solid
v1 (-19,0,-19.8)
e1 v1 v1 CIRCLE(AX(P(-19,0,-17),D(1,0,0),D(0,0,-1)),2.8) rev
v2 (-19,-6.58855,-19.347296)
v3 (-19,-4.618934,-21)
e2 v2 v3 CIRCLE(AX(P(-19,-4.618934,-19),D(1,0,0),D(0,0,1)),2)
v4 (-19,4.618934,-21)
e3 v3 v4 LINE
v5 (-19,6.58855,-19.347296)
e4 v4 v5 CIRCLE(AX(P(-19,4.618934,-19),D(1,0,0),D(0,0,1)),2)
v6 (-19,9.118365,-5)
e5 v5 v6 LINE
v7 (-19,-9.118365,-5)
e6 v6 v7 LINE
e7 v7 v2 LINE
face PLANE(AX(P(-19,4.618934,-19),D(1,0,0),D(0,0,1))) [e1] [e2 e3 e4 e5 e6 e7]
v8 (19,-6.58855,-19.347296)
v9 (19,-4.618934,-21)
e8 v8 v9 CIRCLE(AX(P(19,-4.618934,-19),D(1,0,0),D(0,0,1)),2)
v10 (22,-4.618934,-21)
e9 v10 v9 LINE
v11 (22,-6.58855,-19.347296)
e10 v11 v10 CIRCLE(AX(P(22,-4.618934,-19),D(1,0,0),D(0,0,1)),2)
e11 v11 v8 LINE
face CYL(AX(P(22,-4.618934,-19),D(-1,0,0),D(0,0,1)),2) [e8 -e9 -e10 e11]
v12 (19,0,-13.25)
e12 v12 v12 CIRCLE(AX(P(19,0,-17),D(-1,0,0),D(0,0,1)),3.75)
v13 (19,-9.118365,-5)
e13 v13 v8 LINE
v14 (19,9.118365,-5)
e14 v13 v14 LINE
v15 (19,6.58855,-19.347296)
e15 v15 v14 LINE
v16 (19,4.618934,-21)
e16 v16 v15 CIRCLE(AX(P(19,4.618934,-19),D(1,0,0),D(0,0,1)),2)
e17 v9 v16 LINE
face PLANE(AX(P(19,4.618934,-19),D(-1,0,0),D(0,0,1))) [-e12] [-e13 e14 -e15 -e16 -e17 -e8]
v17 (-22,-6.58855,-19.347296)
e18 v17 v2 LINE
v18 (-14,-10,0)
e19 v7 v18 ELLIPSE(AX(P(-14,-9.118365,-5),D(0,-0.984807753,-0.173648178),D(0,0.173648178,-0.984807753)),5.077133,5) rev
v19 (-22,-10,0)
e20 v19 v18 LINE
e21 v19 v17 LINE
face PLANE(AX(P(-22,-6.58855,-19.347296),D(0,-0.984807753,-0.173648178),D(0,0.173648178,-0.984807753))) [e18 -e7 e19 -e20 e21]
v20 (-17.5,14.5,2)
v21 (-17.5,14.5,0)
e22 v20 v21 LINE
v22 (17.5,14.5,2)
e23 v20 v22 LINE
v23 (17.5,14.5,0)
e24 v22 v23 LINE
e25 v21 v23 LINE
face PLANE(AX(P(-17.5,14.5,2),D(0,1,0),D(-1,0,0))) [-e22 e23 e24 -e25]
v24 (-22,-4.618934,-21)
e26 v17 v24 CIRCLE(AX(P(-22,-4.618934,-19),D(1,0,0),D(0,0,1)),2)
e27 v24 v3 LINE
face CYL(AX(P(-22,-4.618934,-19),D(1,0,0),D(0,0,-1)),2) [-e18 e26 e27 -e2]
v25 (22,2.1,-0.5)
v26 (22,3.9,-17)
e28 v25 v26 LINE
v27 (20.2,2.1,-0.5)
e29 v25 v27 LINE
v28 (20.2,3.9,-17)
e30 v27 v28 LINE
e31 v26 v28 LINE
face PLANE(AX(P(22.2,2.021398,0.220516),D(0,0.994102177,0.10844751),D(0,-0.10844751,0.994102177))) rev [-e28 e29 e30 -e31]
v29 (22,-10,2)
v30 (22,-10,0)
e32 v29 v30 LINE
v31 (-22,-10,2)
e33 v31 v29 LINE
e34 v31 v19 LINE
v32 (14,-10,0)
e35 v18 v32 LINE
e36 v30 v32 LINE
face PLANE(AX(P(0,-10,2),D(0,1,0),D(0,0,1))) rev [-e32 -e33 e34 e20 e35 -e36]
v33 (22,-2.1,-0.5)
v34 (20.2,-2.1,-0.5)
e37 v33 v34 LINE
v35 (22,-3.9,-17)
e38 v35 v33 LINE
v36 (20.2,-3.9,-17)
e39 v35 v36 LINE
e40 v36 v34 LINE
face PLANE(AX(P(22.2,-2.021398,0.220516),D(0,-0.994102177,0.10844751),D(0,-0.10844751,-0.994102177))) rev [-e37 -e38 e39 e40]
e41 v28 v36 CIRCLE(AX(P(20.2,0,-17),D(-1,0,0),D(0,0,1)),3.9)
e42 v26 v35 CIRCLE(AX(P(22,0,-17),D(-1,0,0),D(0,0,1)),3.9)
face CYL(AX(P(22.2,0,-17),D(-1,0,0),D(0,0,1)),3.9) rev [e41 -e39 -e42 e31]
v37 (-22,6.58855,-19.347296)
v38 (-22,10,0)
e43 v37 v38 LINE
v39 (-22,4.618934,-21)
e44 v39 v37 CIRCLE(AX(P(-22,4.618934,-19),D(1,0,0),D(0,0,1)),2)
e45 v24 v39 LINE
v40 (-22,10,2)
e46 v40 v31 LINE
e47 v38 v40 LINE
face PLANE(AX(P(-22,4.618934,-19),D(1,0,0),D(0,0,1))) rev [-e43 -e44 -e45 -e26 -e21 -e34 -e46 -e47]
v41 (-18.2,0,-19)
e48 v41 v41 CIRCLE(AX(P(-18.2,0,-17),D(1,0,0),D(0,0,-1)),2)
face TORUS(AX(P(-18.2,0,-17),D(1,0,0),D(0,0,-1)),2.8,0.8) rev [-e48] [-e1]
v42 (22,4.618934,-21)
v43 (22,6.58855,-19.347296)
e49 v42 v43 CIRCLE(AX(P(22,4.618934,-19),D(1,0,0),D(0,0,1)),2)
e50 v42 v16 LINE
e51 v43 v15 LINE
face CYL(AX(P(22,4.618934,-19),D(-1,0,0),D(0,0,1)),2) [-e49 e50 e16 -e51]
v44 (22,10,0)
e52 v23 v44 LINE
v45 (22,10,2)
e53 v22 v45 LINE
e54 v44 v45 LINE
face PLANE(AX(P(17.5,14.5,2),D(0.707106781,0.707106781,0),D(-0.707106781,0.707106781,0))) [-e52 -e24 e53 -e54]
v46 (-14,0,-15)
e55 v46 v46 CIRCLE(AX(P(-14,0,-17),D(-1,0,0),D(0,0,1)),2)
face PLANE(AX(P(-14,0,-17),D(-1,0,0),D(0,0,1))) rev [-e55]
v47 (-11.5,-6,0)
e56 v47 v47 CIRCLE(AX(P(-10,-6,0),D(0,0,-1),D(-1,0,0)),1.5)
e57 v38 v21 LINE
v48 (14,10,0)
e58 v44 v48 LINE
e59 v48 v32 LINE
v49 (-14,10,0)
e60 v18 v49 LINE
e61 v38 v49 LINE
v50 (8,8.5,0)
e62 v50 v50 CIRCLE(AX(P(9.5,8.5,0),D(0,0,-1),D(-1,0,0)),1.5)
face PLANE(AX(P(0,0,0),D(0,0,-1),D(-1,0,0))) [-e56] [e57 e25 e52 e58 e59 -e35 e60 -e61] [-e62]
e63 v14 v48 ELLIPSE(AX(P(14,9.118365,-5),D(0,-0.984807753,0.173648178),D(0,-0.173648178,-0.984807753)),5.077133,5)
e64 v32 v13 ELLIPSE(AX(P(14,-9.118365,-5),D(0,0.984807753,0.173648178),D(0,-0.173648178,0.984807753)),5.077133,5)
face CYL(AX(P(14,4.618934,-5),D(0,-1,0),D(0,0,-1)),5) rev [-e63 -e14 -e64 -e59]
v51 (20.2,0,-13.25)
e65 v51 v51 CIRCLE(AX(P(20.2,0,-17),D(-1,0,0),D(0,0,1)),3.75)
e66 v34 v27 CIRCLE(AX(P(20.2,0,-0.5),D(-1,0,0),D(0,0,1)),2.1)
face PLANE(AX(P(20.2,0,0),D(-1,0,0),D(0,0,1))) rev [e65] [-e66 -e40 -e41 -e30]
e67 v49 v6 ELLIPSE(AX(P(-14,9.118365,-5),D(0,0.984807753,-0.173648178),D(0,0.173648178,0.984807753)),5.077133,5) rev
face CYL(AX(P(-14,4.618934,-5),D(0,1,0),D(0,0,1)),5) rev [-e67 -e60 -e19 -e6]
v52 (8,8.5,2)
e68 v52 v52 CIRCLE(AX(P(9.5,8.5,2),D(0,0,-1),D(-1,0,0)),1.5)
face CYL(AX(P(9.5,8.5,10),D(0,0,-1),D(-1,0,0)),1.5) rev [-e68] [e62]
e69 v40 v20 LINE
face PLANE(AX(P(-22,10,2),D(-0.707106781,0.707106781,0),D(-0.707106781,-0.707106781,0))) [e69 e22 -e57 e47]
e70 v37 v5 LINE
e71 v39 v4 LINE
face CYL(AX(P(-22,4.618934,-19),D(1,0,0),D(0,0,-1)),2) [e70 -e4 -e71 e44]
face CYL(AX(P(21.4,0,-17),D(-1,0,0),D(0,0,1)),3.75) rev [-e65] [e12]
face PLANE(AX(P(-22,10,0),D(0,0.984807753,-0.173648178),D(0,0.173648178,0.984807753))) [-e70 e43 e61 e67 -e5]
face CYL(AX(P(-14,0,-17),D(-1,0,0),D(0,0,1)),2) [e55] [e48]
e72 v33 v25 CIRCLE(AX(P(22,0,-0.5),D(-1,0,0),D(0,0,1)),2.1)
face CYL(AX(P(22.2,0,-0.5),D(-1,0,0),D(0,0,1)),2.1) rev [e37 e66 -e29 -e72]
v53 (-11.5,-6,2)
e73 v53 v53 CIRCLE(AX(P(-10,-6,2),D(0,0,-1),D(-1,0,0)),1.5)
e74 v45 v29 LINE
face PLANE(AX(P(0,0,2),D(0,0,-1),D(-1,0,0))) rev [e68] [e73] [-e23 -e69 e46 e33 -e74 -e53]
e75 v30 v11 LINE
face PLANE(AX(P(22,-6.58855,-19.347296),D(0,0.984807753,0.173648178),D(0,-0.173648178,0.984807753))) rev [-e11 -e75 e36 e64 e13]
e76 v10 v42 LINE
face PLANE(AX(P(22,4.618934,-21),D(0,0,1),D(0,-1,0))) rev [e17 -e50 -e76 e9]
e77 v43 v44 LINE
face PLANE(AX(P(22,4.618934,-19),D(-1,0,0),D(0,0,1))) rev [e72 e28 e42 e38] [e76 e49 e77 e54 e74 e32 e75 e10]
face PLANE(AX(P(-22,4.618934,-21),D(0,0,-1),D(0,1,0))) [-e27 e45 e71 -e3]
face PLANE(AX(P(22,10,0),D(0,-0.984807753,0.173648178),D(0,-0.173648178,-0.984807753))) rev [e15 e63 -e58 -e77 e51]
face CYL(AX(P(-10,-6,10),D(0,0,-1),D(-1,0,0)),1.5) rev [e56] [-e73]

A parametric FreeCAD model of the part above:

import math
import FreeCAD as App
import Part
import Sketcher
Q = App.Units.Quantity


def edges_at(feature, points):
    """Names of the edges that pass closest to the given points."""
    edges = feature.Shape.Edges
    near = lambda p: min(range(len(edges)), key=lambda i: edges[i].distToShape(Part.Vertex(*p))[0])
    return sorted({f"Edge{near(p) + 1}" for p in points})

doc = App.newDocument("Part")
body = doc.addObject("PartDesign::Body", "Body")

# Sketch on XY plane
sketch1 = body.newObject("Sketcher::SketchObject", "Sketch")
sketch1.AttachmentSupport = (doc.getObject("XY_Plane"), [""])
sketch1.MapMode = "FlatFace"
sketch1.addGeometry([
    Part.LineSegment(App.Vector(-19, 10, 0), App.Vector(-19, -10, 0)),
    Part.LineSegment(App.Vector(-19, -10, 0), App.Vector(19, -10, 0)),
    Part.LineSegment(App.Vector(19, -10, 0), App.Vector(19, 10, 0)),
    Part.LineSegment(App.Vector(19, 10, 0), App.Vector(-19, 10, 0)),
], False)
sketch1.addConstraint([
    Sketcher.Constraint("Coincident", 0, 2, 1, 1),
    Sketcher.Constraint("Coincident", 1, 2, 2, 1),
    Sketcher.Constraint("Coincident", 2, 2, 3, 1),
    Sketcher.Constraint("Coincident", 3, 2, 0, 1),
    Sketcher.Constraint("Vertical", 0),
    Sketcher.Constraint("Horizontal", 1),
    Sketcher.Constraint("Vertical", 2),
    Sketcher.Constraint("Horizontal", 3),
    Sketcher.Constraint("Symmetric", 0, 2, 2, 2, -1, 1),
    Sketcher.Constraint("DistanceX", 1, 1, 1, 2, Q("38 mm")),
    Sketcher.Constraint("DistanceY", 0, 2, 0, 1, Q("20 mm")),
])
pad1 = body.newObject("PartDesign::Pad", "Pad")
pad1.Profile = sketch1
pad1.Length = 2

# Sketch on YZ plane
sketch2 = body.newObject("Sketcher::SketchObject", "Sketch001")
sketch2.AttachmentSupport = (doc.getObject("YZ_Plane"), [""])
sketch2.MapMode = "FlatFace"
sketch2.AttachmentOffset = App.Placement(App.Vector(0, 0, 19), App.Rotation())
sketch2.addGeometry([
    Part.LineSegment(App.Vector(10, 0, 0), App.Vector(10, 2, 0)),  # 0
    Part.LineSegment(App.Vector(10, 2, 0), App.Vector(-10, 2, 0)),  # 1
    Part.LineSegment(App.Vector(-10, 2, 0), App.Vector(-10, 0, 0)),  # 2
    Part.LineSegment(App.Vector(-10, 0, 0), App.Vector(-6.6, -19.3, 0)),  # 3
    Part.ArcOfCircle(Part.Circle(App.Vector(-4.6, -19, 0), App.Vector(0, 0, 1), 2), math.radians(-170), math.radians(-90)),  # 4
    Part.LineSegment(App.Vector(-4.6, -21, 0), App.Vector(4.6, -21, 0)),  # 5
    Part.ArcOfCircle(Part.Circle(App.Vector(4.6, -19, 0), App.Vector(0, 0, 1), 2), math.radians(-90), math.radians(-10)),  # 6
    Part.LineSegment(App.Vector(6.6, -19.3, 0), App.Vector(10, 0, 0)),  # 7
], False)
sketch2.addConstraint([
    Sketcher.Constraint("Coincident", 0, 2, 1, 1),
    Sketcher.Constraint("Coincident", 1, 2, 2, 1),
    Sketcher.Constraint("Coincident", 2, 2, 3, 1),
    Sketcher.Constraint("Tangent", 3, 2, 4, 1),
    Sketcher.Constraint("Tangent", 4, 2, 5, 1),
    Sketcher.Constraint("Tangent", 5, 2, 6, 1),
    Sketcher.Constraint("Tangent", 6, 2, 7, 1),
    Sketcher.Constraint("Coincident", 7, 2, 0, 1),
    Sketcher.Constraint("Vertical", 0),
    Sketcher.Constraint("Horizontal", 1),
    Sketcher.Constraint("Vertical", 2),
    Sketcher.Constraint("Horizontal", 5),
    Sketcher.Constraint("Equal", 4, 6),
    Sketcher.Constraint("Symmetric", 2, 2, 7, 2, -1, 1),
    Sketcher.Constraint("Symmetric", 3, 2, 6, 2, -2),
    Sketcher.Constraint("Radius", 4, Q("2 mm")),
    Sketcher.Constraint("DistanceX", 1, 2, 1, 1, Q("20 mm")),
    Sketcher.Constraint("DistanceY", 0, 1, 0, 2, Q("2 mm")),
    Sketcher.Constraint("Angle", 3, Q("-80 deg")),
    Sketcher.Constraint("DistanceY", 4, 3, -1, 1, Q("19 mm")),
])
pad2 = body.newObject("PartDesign::Pad", "Pad001")
pad2.Profile = sketch2
pad2.Length = 3
doc.recompute()

mirrored = body.newObject("PartDesign::Mirrored", "Mirrored")
mirrored.Originals = [pad2]
mirrored.MirrorPlane = (doc.getObject("YZ_Plane"), [""])
body.Tip = mirrored

# Sketch on XY plane
sketch3 = body.newObject("Sketcher::SketchObject", "Sketch002")
sketch3.AttachmentSupport = (doc.getObject("XY_Plane"), [""])
sketch3.MapMode = "FlatFace"
sketch3.addGeometry([
    Part.LineSegment(App.Vector(22, -10, 0), App.Vector(18, -14, 0)),  # 0
    Part.LineSegment(App.Vector(18, -14, 0), App.Vector(-18, -14, 0)),  # 1
    Part.LineSegment(App.Vector(-18, -14, 0), App.Vector(-22, -10, 0)),  # 2
    Part.LineSegment(App.Vector(-22, -10, 0), App.Vector(22, -10, 0)),  # 3
    Part.LineSegment(App.Vector(22, 10, 0), App.Vector(-22, 10, 0)),  # 4
    Part.LineSegment(App.Vector(-22, 10, 0), App.Vector(-18, 14, 0)),  # 5
    Part.LineSegment(App.Vector(-18, 14, 0), App.Vector(18, 14, 0)),  # 6
    Part.LineSegment(App.Vector(18, 14, 0), App.Vector(22, 10, 0)),  # 7
], False)
sketch3.addConstraint([
    Sketcher.Constraint("Coincident", 0, 2, 1, 1),
    Sketcher.Constraint("Coincident", 1, 2, 2, 1),
    Sketcher.Constraint("Coincident", 2, 2, 3, 1),
    Sketcher.Constraint("Coincident", 3, 2, 0, 1),
    Sketcher.Constraint("Coincident", 4, 2, 5, 1),
    Sketcher.Constraint("Coincident", 5, 2, 6, 1),
    Sketcher.Constraint("Coincident", 6, 2, 7, 1),
    Sketcher.Constraint("Coincident", 7, 2, 4, 1),
    Sketcher.Constraint("Horizontal", 1),
    Sketcher.Constraint("Horizontal", 3),
    Sketcher.Constraint("Horizontal", 4),
    Sketcher.Constraint("Horizontal", 6),
    Sketcher.Constraint("Symmetric", 3, 2, 4, 2, -1, 1),
    Sketcher.Constraint("Symmetric", 0, 2, 5, 2, -1, 1),
    Sketcher.Constraint("Perpendicular", 0, 2),
    Sketcher.Constraint("Perpendicular", 5, 7),
    Sketcher.Constraint("Vertical", 2, 2, 4, 2),
    Sketcher.Constraint("Vertical", 1, 2, 5, 2),
    Sketcher.Constraint("Vertical", 0, 2, 6, 2),
    Sketcher.Constraint("DistanceX", 1, 2, 1, 1, Q("35 mm")),
    Sketcher.Constraint("DistanceX", 3, 1, 3, 2, Q("44 mm")),
    Sketcher.Constraint("DistanceY", 2, 2, -1, 1, Q("10 mm")),
])
pad3 = body.newObject("PartDesign::Pad", "Pad002")
pad3.Profile = sketch3
pad3.Length = 2

# Sketch on YZ plane
sketch4 = body.newObject("Sketcher::SketchObject", "Sketch003")
sketch4.AttachmentSupport = (doc.getObject("YZ_Plane"), [""])
sketch4.MapMode = "FlatFace"
sketch4.AttachmentOffset = App.Placement(App.Vector(0, 0, -22), App.Rotation())
sketch4.addGeometry(Part.Circle(App.Vector(0, -17, 0), App.Vector(0, 0, 1), 1.6), False)
sketch4.addConstraint([
    Sketcher.Constraint("PointOnObject", 0, 3, -2),
    Sketcher.Constraint("Diameter", 0, Q("3.2 mm")),
    Sketcher.Constraint("DistanceY", 0, 3, -1, 1, Q("17 mm")),
])
pocket1 = body.newObject("PartDesign::Pocket", "Pocket")
pocket1.Profile = sketch4
pocket1.Type = "ThroughAll"
pocket1.Reversed = True

# Sketch on YZ plane
sketch5 = body.newObject("Sketcher::SketchObject", "Sketch004")
sketch5.AttachmentSupport = (doc.getObject("YZ_Plane"), [""])
sketch5.MapMode = "FlatFace"
sketch5.AttachmentOffset = App.Placement(App.Vector(0, 0, 20.2), App.Rotation())
sketch5.addGeometry([
    Part.LineSegment(App.Vector(-3.9, -17, 0), App.Vector(-2.1, -0.5, 0)),
    Part.ArcOfCircle(Part.Circle(App.Vector(0, -0.5, 0), App.Vector(0, 0, 1), 2.1), math.radians(0), math.radians(180)),
    Part.LineSegment(App.Vector(2.1, -0.5, 0), App.Vector(3.9, -17, 0)),
    Part.ArcOfCircle(Part.Circle(App.Vector(0, -17, 0), App.Vector(0, 0, 1), 3.9), math.radians(180), math.radians(360)),
], False)
sketch5.addConstraint([
    Sketcher.Constraint("Coincident", 0, 2, 1, 2),
    Sketcher.Constraint("Coincident", 1, 1, 2, 1),
    Sketcher.Constraint("Coincident", 2, 2, 3, 2),
    Sketcher.Constraint("Coincident", 3, 1, 0, 1),
    Sketcher.Constraint("Symmetric", 0, 2, 1, 1, -2),
    Sketcher.Constraint("Symmetric", 2, 2, 3, 1, -2),
    Sketcher.Constraint("Horizontal", 1, 3, 0, 2),
    Sketcher.Constraint("Horizontal", 3, 3, 2, 2),
    Sketcher.Constraint("Radius", 1, Q("2.1 mm")),
    Sketcher.Constraint("Radius", 3, Q("3.9 mm")),
    Sketcher.Constraint("DistanceY", 3, 3, -1, 1, Q("17 mm")),
    Sketcher.Constraint("DistanceY", 1, 3, -1, 1, Q("0.5 mm")),
])
pocket2 = body.newObject("PartDesign::Pocket", "Pocket001")
pocket2.Profile = sketch5
pocket2.Length = 2
pocket2.Reversed = True

# Sketch on YZ plane
sketch6 = body.newObject("Sketcher::SketchObject", "Sketch005")
sketch6.AttachmentSupport = (doc.getObject("YZ_Plane"), [""])
sketch6.MapMode = "FlatFace"
sketch6.AttachmentOffset = App.Placement(App.Vector(0, 0, 19), App.Rotation())
sketch6.addGeometry(Part.Circle(App.Vector(0, -17, 0), App.Vector(0, 0, 1), 3.8), False)
sketch6.addConstraint([
    Sketcher.Constraint("PointOnObject", 0, 3, -2),
    Sketcher.Constraint("Diameter", 0, Q("7.5 mm")),
    Sketcher.Constraint("DistanceY", 0, 3, -1, 1, Q("17 mm")),
])
pocket3 = body.newObject("PartDesign::Pocket", "Pocket002")
pocket3.Profile = sketch6
pocket3.Length = 2.4
pocket3.Reversed = True

# Sketch on XY plane
sketch7 = body.newObject("Sketcher::SketchObject", "Sketch006")
sketch7.AttachmentSupport = (doc.getObject("XY_Plane"), [""])
sketch7.MapMode = "FlatFace"
sketch7.addGeometry([
    Part.LineSegment(App.Vector(-18, -14, 0), App.Vector(-22, -10, 0)),
    Part.LineSegment(App.Vector(-22, -10, 0), App.Vector(22, -10, 0)),
    Part.LineSegment(App.Vector(22, -10, 0), App.Vector(18, -14, 0)),
    Part.LineSegment(App.Vector(18, -14, 0), App.Vector(-18, -14, 0)),
], False)
sketch7.addConstraint([
    Sketcher.Constraint("Coincident", 0, 2, 1, 1),
    Sketcher.Constraint("Coincident", 1, 2, 2, 1),
    Sketcher.Constraint("Coincident", 2, 2, 3, 1),
    Sketcher.Constraint("Coincident", 3, 2, 0, 1),
    Sketcher.Constraint("Horizontal", 1),
    Sketcher.Constraint("Horizontal", 3),
    Sketcher.Constraint("Perpendicular", 0, 2),
    Sketcher.Constraint("Equal", 0, 2),
    Sketcher.Constraint("DistanceX", 1, 1, 1, 2, Q("44 mm")),
    Sketcher.Constraint("DistanceX", 3, 2, 3, 1, Q("35 mm")),
    Sketcher.Constraint("DistanceX", 0, 2, -1, 1, Q("22 mm")),
    Sketcher.Constraint("DistanceY", 0, 2, -1, 1, Q("10 mm")),
])
pocket4 = body.newObject("PartDesign::Pocket", "Pocket003")
pocket4.Profile = sketch7
pocket4.Type = "ThroughAll"
pocket4.Reversed = True

# Sketch on YZ plane
sketch8 = body.newObject("Sketcher::SketchObject", "Sketch007")
sketch8.AttachmentSupport = (doc.getObject("YZ_Plane"), [""])
sketch8.MapMode = "FlatFace"
sketch8.AttachmentOffset = App.Placement(App.Vector(0, 0, -22), App.Rotation())
sketch8.addGeometry(Part.Circle(App.Vector(0, -17, 0), App.Vector(0, 0, 1), 2), False)
sketch8.addConstraint([
    Sketcher.Constraint("PointOnObject", 0, 3, -2),
    Sketcher.Constraint("Diameter", 0, Q("4 mm")),
    Sketcher.Constraint("DistanceY", 0, 3, -1, 1, Q("17 mm")),
])
pad4 = body.newObject("PartDesign::Pad", "Pad003")
pad4.Profile = sketch8
pad4.Length = 8
doc.recompute()

fillet = body.newObject("PartDesign::Fillet", "Fillet")
fillet.Base = (pad4, edges_at(pad4, [(-19, 0, -19)]))
fillet.Radius = 0.8
doc.recompute()

fillet2 = body.newObject("PartDesign::Fillet", "Fillet001")
fillet2.Base = (fillet, edges_at(fillet, [(-19, 0, 0), (19, 0, 0)]))
fillet2.Radius = 5

# Sketch on XY plane
sketch9 = body.newObject("Sketcher::SketchObject", "Sketch008")
sketch9.AttachmentSupport = (doc.getObject("XY_Plane"), [""])
sketch9.MapMode = "FlatFace"
sketch9.addGeometry([
    Part.Circle(App.Vector(9.5, 8.5, 0), App.Vector(0, 0, 1), 1.5),
    Part.Circle(App.Vector(-10, -6, 0), App.Vector(0, 0, 1), 1.5),
], False)
sketch9.addConstraint([
    Sketcher.Constraint("Equal", 0, 1),
    Sketcher.Constraint("Diameter", 0, Q("3 mm")),
    Sketcher.Constraint("DistanceX", 1, 3, -1, 1, Q("10 mm")),
    Sketcher.Constraint("DistanceY", 1, 3, -1, 1, Q("6 mm")),
    Sketcher.Constraint("DistanceX", -1, 1, 0, 3, Q("9.5 mm")),
    Sketcher.Constraint("DistanceY", -1, 1, 0, 3, Q("8.5 mm")),
])
pocket5 = body.newObject("PartDesign::Pocket", "Pocket004")
pocket5.Profile = sketch9
pocket5.Length = 10
pocket5.Reversed = True

doc.recompute()
